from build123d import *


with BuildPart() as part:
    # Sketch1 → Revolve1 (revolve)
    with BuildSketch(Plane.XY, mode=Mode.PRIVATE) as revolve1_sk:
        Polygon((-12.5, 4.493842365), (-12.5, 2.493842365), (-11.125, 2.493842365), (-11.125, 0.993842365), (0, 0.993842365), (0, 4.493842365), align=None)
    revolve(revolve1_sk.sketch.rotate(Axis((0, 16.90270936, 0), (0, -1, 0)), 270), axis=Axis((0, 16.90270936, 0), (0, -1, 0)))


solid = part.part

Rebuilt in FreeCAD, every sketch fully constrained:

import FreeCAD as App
import Part
import Sketcher

V = App.Vector
Q = App.Units.Quantity

doc = App.newDocument("Part")
params = doc.addObject("Spreadsheet::Sheet", "Params")
for row, (alias, value) in enumerate([
    ("sketch1_height", "2 mm"),
    ("sketch1_width", "12.5 mm"),
    ("sketch1_height2", "1.5 mm"),
    ("revolution_angle", "360 deg"),
], start=1):
    params.set(f"A{row}", alias)
    params.set(f"B{row}", "=" + value)
    params.setAlias(f"B{row}", alias)

body = doc.addObject("PartDesign::Body", "Body")

# Sketch on XY plane
sketch1 = body.newObject("Sketcher::SketchObject", "Sketch")
sketch1.AttachmentSupport = (doc.getObject("XY_Plane"), [""])
sketch1.MapMode = "FlatFace"
sketch1.addGeometry([
    Part.LineSegment(V(-12.5, 4.5, 0), V(-12.5, 2.5, 0)),  # 0
    Part.LineSegment(V(-12.5, 2.5, 0), V(-11.1, 2.5, 0)),  # 1
    Part.LineSegment(V(-11.1, 2.5, 0), V(-11.1, 1, 0)),  # 2
    Part.LineSegment(V(-11.1, 1, 0), V(0, 1, 0)),  # 3
    Part.LineSegment(V(0, 1, 0), V(0, 4.5, 0)),  # 4
    Part.LineSegment(V(0, 4.5, 0), V(-12.5, 4.5, 0)),  # 5
], False)
sketch1.addConstraint([
    Sketcher.Constraint("Coincident", 0, 2, 1, 1),
    Sketcher.Constraint("Coincident", 1, 2, 2, 1),
    Sketcher.Constraint("Coincident", 2, 2, 3, 1),
    Sketcher.Constraint("Coincident", 3, 2, 4, 1),
    Sketcher.Constraint("Coincident", 4, 2, 5, 1),
    Sketcher.Constraint("Coincident", 5, 2, 0, 1),
    Sketcher.Constraint("Vertical", 0),
    Sketcher.Constraint("Horizontal", 1),
    Sketcher.Constraint("Vertical", 2),
    Sketcher.Constraint("Horizontal", 3),
    Sketcher.Constraint("Vertical", 4),
    Sketcher.Constraint("Horizontal", 5),
    Sketcher.Constraint("PointOnObject", 3, 2, -2),
    Sketcher.Constraint("DistanceY", 0, 2, 0, 1, Q("2 mm")),
    Sketcher.Constraint("DistanceX", 5, 2, 5, 1, Q("12.5 mm")),
    Sketcher.Constraint("DistanceY", 2, 2, 2, 1, Q("1.5 mm")),
    Sketcher.Constraint("DistanceX", 1, 1, 1, 2, Q("1.375 mm")),
    Sketcher.Constraint("DistanceY", -1, 1, 0, 2, Q("2.493842 mm")),
])
sketch1.setExpression("Constraints[13]", "Params.sketch1_height")
sketch1.setExpression("Constraints[14]", "Params.sketch1_width")
sketch1.setExpression("Constraints[15]", "Params.sketch1_height2")
revolution = body.newObject("PartDesign::Revolution", "Revolution")
revolution.Profile = sketch1
revolution.ReferenceAxis = (sketch1, ["V_Axis"])
revolution.setExpression("Angle", "Params.revolution_angle")

doc.recompute()
